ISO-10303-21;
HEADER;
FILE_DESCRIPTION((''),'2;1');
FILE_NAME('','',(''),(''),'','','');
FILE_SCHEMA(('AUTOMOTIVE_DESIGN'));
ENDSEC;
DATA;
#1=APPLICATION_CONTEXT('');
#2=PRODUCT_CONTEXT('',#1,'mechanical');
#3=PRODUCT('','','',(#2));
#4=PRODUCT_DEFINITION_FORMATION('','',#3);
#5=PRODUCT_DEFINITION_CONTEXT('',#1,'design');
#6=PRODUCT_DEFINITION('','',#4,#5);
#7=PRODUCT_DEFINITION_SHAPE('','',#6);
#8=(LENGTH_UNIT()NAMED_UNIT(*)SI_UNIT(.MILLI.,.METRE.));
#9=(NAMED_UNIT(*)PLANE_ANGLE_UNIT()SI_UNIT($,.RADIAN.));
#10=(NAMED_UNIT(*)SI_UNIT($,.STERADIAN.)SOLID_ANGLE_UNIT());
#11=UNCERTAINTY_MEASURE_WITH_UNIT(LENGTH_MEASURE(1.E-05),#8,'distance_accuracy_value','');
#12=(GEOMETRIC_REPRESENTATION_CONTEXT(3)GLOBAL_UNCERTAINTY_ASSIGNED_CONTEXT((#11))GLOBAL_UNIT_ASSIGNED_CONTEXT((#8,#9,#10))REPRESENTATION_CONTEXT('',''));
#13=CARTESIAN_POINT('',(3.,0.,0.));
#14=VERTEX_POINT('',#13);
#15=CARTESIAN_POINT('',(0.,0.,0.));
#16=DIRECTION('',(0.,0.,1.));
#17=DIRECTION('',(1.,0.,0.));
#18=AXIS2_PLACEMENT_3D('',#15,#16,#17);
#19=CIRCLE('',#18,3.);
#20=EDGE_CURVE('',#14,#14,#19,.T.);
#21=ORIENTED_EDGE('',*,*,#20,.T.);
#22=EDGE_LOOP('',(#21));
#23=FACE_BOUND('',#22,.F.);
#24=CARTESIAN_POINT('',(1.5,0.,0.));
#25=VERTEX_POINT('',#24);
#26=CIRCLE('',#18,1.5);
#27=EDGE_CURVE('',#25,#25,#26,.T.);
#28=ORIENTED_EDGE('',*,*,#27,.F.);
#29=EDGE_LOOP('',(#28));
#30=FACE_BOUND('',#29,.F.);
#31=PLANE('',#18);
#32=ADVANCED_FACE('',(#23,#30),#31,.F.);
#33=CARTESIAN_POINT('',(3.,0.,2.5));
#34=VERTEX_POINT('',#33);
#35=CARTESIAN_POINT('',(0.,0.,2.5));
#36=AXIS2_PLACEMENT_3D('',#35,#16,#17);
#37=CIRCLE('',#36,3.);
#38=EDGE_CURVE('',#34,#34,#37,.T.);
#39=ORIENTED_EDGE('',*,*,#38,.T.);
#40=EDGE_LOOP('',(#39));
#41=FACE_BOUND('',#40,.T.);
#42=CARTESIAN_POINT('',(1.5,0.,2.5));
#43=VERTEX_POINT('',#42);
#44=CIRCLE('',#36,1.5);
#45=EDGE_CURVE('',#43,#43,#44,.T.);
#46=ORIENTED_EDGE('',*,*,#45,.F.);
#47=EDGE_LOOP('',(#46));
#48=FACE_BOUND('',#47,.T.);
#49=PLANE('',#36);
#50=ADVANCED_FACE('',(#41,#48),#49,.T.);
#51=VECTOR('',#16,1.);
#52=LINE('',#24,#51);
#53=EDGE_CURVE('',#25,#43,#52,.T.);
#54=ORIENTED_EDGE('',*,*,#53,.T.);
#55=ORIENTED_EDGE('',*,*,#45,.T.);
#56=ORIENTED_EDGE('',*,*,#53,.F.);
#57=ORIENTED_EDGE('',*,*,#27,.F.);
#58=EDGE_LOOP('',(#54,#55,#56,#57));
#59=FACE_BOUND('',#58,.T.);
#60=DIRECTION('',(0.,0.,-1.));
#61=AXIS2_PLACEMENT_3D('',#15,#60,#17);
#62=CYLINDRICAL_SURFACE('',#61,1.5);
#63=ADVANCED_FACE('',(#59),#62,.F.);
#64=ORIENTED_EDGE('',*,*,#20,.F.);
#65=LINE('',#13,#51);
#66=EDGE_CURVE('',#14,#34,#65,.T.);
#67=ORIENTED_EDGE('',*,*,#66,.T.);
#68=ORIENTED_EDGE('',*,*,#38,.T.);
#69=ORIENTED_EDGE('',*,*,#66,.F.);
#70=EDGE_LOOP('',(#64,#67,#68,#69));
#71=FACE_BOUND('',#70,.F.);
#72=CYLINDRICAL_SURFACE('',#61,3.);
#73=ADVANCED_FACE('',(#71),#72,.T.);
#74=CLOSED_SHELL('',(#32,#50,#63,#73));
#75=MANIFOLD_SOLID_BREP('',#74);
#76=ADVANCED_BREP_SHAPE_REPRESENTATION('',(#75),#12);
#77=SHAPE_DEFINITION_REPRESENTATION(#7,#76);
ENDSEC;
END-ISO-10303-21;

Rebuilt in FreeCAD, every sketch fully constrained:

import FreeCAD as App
import Part
import Sketcher

doc = App.newDocument("Part")
body = doc.addObject("PartDesign::Body", "Body")

sketch1 = body.newObject("Sketcher::SketchObject", "Sketch")
sketch1.AttachmentSupport = (doc.getObject("XY_Plane"), [""])
sketch1.MapMode = "FlatFace"
sketch1.addGeometry(Part.Circle(App.Vector(0, 0, 0), App.Vector(0, 0, 1), 3), False)
sketch1.addGeometry(Part.Circle(App.Vector(0, 0, 0), App.Vector(0, 0, 1), 1.5), False)
sketch1.addConstraint(Sketcher.Constraint("Coincident", 0, 3, -1, 1))
sketch1.addConstraint(Sketcher.Constraint("Coincident", 1, 3, -1, 1))
sketch1.addConstraint(Sketcher.Constraint("Diameter", 0, 6.0))
sketch1.addConstraint(Sketcher.Constraint("Diameter", 1, 3.0))
pad1 = body.newObject("PartDesign::Pad", "Pad")
pad1.Profile = sketch1
pad1.Length = 2.5

doc.recompute()
